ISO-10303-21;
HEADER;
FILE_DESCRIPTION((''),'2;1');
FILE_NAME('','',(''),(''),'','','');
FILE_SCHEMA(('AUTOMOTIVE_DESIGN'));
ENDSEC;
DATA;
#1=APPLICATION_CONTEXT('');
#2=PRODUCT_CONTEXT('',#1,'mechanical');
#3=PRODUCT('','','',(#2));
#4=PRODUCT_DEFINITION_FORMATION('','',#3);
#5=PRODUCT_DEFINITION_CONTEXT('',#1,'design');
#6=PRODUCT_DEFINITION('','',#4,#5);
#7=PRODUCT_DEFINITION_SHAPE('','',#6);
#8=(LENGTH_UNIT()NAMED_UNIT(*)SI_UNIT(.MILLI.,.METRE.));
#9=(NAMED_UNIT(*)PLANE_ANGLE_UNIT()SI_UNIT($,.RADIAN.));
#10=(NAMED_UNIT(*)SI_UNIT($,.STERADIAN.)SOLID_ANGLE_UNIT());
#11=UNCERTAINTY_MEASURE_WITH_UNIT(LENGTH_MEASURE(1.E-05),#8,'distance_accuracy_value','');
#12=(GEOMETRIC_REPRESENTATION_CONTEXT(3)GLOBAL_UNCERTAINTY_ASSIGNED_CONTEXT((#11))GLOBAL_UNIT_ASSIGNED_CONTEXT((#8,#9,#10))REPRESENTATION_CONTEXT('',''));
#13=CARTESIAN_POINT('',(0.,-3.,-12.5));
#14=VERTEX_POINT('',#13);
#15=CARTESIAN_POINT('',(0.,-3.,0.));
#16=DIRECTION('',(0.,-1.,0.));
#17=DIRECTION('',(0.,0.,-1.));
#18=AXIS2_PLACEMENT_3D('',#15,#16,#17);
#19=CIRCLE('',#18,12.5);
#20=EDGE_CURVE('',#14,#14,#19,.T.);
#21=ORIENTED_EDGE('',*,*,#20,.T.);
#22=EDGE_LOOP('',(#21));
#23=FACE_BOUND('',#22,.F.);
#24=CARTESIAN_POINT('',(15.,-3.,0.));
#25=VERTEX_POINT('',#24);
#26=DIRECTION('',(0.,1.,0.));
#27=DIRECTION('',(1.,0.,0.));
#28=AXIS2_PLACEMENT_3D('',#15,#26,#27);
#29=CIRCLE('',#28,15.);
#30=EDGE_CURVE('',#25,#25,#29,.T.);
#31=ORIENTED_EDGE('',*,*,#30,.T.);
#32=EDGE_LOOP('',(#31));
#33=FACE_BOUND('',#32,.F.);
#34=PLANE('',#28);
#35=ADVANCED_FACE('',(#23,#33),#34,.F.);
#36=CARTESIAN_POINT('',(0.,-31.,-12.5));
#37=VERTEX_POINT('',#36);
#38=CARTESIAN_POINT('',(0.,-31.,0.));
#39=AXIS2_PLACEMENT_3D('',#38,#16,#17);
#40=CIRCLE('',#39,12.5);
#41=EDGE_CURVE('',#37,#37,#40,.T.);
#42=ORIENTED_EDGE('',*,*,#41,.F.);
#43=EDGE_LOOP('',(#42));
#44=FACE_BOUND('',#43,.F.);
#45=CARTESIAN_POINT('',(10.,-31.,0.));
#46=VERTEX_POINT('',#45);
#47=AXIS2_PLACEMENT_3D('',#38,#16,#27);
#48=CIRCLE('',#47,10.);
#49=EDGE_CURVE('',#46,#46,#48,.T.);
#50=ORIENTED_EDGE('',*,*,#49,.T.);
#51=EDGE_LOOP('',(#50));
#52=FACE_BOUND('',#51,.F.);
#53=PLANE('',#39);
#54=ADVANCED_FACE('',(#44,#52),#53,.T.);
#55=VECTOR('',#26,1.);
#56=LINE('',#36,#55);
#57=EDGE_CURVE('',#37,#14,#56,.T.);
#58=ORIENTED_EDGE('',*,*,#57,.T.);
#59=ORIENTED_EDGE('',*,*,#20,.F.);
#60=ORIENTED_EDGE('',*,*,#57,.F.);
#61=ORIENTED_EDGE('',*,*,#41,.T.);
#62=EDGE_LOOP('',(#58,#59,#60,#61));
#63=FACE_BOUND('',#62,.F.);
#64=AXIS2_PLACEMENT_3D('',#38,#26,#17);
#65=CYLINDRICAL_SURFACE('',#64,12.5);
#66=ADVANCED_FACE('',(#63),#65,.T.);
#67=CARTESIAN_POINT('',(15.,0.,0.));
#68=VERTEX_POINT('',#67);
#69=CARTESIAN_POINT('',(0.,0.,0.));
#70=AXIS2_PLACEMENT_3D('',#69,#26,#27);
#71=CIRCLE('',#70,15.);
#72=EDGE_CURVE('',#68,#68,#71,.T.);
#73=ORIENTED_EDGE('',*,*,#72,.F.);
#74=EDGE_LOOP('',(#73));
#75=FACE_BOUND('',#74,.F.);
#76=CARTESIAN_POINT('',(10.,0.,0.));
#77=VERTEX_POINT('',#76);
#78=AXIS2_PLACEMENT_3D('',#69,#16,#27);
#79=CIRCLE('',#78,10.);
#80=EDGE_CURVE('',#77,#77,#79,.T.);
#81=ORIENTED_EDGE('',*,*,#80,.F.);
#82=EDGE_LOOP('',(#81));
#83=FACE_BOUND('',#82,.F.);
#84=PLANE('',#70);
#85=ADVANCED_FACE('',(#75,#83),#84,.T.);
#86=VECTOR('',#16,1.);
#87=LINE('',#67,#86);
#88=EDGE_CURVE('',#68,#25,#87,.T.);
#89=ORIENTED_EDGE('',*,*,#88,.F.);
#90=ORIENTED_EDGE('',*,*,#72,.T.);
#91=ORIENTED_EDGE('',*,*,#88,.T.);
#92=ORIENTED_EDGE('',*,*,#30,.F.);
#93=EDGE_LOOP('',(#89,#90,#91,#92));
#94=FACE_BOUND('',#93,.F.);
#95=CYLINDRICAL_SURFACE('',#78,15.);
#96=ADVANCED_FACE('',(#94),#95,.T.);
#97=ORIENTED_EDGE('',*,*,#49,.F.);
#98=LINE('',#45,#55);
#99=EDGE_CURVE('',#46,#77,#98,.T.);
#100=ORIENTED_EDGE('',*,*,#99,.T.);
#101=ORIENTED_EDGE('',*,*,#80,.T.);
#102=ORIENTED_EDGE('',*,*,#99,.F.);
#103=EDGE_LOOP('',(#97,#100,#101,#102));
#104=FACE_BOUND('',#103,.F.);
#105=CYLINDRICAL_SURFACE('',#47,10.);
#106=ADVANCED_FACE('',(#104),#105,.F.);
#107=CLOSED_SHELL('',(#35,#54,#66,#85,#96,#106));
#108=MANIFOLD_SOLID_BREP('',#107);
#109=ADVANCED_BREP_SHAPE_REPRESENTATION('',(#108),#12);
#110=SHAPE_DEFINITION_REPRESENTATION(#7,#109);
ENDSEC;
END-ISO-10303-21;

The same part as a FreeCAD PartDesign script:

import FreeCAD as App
import Part
import Sketcher
from FreeCAD import Vector


def add_polygon(sketch, points):
    """Adds a closed chain of lines whose ends are joined by coincident constraints."""
    first, n = sketch.GeometryCount, len(points)
    for a, b in zip(points, points[1:] + points[:1]):
        sketch.addGeometry(Part.LineSegment(App.Vector(*a, 0), App.Vector(*b, 0)), False)
    for i in range(n):
        sketch.addConstraint(Sketcher.Constraint("Coincident", first + i, 2, first + (i + 1) % n, 1))

doc = App.newDocument("Part")
body = doc.addObject("PartDesign::Body", "Body")

# Sketch on XY plane
sketch1 = doc.addObject("Sketcher::SketchObject", "Sketch")
body.addObject(sketch1)
sketch1.AttachmentSupport = (doc.XY_Plane, [""])
sketch1.MapMode = "FlatFace"
add_polygon(sketch1, [(15, 0), (0, 0), (0, -3), (15, -3)])  # lines 0-3
sketch1.addConstraint([
    Sketcher.Constraint("Horizontal", 0),
    Sketcher.Constraint("Vertical", 1),
    Sketcher.Constraint("Horizontal", 2),
    Sketcher.Constraint("Vertical", 3),
    Sketcher.Constraint("Coincident", 0, 2, -1, 1),
    Sketcher.Constraint("DistanceX", 0, 2, 0, 1, 15.0),
    Sketcher.Constraint("DistanceY", 1, 2, 1, 1, 3.0),
])
revolution = doc.addObject("PartDesign::Revolution", "Revolution")
body.addObject(revolution)
revolution.Profile = sketch1
revolution.ReferenceAxis = (sketch1, ["V_Axis"])
revolution.Angle = 360

# Sketch on YZ plane
sketch2 = doc.addObject("Sketcher::SketchObject", "Sketch001")
body.addObject(sketch2)
sketch2.AttachmentSupport = (doc.YZ_Plane, [""])
sketch2.MapMode = "FlatFace"
add_polygon(sketch2, [(-31, -12), (-3, -12), (-3, 0), (-31, 0)])  # lines 0-3
sketch2.addConstraint([
    Sketcher.Constraint("Horizontal", 0),
    Sketcher.Constraint("Vertical", 1),
    Sketcher.Constraint("Horizontal", 2),
    Sketcher.Constraint("Vertical", 3),
    Sketcher.Constraint("PointOnObject", 1, 2, -1),
    Sketcher.Constraint("DistanceX", 0, 1, 0, 2, 28.0),
    Sketcher.Constraint("DistanceY", 1, 1, 1, 2, 12.5),
    Sketcher.Constraint("DistanceX", 0, 2, -1, 1, 3.0),
])
revolution2 = doc.addObject("PartDesign::Revolution", "Revolution001")
body.addObject(revolution2)
revolution2.Profile = sketch2
revolution2.ReferenceAxis = (sketch2, ["H_Axis"])
revolution2.Angle = 360

# Sketch on XZ plane
sketch3 = doc.addObject("Sketcher::SketchObject", "Sketch002")
body.addObject(sketch3)
sketch3.AttachmentSupport = (doc.XZ_Plane, [""])
sketch3.MapMode = "FlatFace"
sketch3.AttachmentOffset = App.Placement(Vector(0, 0, 31), App.Rotation())
sketch3.addGeometry(Part.Circle(Vector(0, 0, 0), Vector(0, 0, 1), 10), False)
sketch3.addConstraint([
    Sketcher.Constraint("Coincident", 0, 3, -1, 1),
    Sketcher.Constraint("Diameter", 0, 20.0),
])
pocket1 = doc.addObject("PartDesign::Pocket", "Pocket")
body.addObject(pocket1)
pocket1.Profile = sketch3
pocket1.Length = 31

doc.recompute()
